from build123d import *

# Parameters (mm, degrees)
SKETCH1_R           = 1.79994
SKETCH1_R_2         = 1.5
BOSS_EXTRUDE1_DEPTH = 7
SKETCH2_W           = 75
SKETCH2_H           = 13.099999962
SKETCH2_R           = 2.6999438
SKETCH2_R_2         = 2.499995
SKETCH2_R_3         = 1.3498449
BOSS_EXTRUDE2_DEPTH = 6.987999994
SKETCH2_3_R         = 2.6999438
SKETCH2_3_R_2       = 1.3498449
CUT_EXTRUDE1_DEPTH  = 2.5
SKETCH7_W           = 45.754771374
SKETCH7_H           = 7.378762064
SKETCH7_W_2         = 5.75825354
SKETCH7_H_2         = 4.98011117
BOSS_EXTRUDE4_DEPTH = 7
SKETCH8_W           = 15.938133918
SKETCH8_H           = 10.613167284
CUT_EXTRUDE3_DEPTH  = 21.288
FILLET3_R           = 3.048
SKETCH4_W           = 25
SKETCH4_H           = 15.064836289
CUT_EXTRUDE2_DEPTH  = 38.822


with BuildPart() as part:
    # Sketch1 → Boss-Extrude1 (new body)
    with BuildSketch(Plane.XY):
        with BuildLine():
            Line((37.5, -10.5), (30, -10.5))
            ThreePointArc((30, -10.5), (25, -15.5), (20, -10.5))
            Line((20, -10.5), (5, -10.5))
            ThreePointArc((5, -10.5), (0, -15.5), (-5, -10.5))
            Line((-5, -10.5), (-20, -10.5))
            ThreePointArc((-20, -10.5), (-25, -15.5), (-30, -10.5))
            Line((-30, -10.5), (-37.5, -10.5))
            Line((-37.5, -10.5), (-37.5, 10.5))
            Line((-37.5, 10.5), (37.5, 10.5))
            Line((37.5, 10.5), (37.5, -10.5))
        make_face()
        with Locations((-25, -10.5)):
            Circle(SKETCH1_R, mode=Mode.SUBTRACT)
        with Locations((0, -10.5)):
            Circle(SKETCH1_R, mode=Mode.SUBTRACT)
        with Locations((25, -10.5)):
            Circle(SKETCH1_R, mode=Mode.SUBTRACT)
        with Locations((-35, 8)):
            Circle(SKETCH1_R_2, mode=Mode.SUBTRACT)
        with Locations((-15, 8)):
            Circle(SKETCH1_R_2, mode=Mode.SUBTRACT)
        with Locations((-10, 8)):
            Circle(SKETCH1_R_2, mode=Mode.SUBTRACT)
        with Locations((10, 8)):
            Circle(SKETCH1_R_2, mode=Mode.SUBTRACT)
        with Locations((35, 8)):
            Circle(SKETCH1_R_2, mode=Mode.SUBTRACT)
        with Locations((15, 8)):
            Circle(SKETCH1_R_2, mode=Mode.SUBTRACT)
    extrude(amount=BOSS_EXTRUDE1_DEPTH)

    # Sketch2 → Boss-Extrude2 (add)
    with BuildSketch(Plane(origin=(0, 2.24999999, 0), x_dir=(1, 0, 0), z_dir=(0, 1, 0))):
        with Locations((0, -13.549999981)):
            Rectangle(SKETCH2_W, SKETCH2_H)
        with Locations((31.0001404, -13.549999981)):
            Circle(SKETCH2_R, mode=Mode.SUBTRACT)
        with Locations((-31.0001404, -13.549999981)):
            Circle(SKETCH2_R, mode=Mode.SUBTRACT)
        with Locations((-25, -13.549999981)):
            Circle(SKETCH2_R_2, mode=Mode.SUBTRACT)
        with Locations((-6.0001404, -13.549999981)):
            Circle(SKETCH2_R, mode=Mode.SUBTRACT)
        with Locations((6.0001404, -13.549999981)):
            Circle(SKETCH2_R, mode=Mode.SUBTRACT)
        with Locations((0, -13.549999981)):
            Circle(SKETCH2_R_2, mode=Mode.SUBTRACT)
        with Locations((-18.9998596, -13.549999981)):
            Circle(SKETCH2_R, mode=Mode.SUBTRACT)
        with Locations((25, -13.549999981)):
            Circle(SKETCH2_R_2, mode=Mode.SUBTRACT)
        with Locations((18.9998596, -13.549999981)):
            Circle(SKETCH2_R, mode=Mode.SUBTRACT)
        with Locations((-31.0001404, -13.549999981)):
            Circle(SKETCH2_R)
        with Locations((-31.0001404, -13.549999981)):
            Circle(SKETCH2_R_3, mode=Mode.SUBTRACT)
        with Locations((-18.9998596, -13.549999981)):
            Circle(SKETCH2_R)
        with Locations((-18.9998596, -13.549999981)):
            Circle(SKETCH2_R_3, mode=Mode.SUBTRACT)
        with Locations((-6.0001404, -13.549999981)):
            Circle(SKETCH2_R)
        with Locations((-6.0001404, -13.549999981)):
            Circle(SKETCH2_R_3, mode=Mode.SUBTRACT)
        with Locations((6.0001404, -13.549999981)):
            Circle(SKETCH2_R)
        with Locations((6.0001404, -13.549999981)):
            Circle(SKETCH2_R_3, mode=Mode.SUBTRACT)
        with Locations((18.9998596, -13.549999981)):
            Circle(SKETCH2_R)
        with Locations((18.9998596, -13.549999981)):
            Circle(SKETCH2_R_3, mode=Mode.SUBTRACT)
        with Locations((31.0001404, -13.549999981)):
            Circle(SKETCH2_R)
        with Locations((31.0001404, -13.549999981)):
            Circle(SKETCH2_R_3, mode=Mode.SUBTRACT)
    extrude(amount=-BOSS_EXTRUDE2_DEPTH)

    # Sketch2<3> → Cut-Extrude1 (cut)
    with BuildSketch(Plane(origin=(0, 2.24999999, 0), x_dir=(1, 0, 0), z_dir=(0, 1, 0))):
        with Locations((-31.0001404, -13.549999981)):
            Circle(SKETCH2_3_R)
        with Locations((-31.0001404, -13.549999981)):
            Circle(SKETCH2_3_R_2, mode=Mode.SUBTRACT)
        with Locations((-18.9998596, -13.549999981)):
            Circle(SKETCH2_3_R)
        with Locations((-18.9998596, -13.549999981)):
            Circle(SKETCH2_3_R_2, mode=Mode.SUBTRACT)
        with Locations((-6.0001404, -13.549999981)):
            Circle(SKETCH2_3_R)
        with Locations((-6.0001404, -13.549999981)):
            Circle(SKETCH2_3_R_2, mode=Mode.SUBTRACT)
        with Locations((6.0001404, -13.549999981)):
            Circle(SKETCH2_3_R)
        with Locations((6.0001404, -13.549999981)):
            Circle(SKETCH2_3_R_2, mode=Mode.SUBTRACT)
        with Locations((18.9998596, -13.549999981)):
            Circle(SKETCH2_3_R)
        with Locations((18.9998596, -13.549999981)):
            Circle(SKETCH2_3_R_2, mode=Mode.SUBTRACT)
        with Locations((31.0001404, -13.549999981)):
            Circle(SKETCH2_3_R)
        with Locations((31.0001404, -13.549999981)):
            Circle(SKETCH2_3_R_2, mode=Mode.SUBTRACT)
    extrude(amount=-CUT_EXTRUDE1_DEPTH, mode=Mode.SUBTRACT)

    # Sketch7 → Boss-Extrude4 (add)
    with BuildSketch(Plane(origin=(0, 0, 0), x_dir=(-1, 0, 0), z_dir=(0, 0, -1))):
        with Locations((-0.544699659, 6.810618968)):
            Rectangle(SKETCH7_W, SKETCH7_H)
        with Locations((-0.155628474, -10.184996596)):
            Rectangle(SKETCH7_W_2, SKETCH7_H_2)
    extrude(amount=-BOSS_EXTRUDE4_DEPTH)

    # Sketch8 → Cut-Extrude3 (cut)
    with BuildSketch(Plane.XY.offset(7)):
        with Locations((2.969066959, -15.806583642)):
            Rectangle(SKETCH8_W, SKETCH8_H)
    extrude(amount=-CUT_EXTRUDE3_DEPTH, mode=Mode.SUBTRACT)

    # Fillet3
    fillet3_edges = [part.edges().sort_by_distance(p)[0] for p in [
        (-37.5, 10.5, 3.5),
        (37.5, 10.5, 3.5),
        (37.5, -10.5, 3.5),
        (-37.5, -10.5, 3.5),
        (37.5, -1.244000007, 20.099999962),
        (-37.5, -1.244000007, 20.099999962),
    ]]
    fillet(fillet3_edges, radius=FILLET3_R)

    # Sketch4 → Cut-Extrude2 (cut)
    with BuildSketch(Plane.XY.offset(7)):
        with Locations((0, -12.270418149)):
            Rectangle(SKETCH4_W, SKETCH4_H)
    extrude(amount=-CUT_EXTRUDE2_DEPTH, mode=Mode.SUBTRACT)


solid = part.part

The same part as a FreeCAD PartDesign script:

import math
import FreeCAD as App
import Part
import Sketcher

V = App.Vector


def edges_at(feature, points):
    """Names of the edges that pass closest to the given points."""
    edges = feature.Shape.Edges
    near = lambda p: min(range(len(edges)), key=lambda i: edges[i].distToShape(Part.Vertex(*p))[0])
    return sorted({f"Edge{near(p) + 1}" for p in points})


def add_polygon(sketch, points):
    """Adds a closed chain of lines whose ends are joined by coincident constraints."""
    first, n = sketch.GeometryCount, len(points)
    for a, b in zip(points, points[1:] + points[:1]):
        sketch.addGeometry(Part.LineSegment(App.Vector(*a, 0), App.Vector(*b, 0)), False)
    for i in range(n):
        sketch.addConstraint(Sketcher.Constraint("Coincident", first + i, 2, first + (i + 1) % n, 1))

doc = App.newDocument("Part")
body = doc.addObject("PartDesign::Body", "Body")

sketch1 = doc.addObject("Sketcher::SketchObject", "Sketch")
body.addObject(sketch1)
sketch1.AttachmentSupport = (doc.XY_Plane, [""])
sketch1.MapMode = "FlatFace"
sketch1.addGeometry(Part.LineSegment(V(30, -10.5, 0), V(37.5, -10.5, 0)), False)
sketch1.addGeometry(Part.LineSegment(V(37.5, -10.5, 0), V(37.5, 10.5, 0)), False)
sketch1.addGeometry(Part.LineSegment(V(37.5, 10.5, 0), V(-37.5, 10.5, 0)), False)
sketch1.addGeometry(Part.LineSegment(V(-37.5, 10.5, 0), V(-37.5, -10.5, 0)), False)
sketch1.addGeometry(Part.LineSegment(V(-37.5, -10.5, 0), V(-30, -10.5, 0)), False)
sketch1.addGeometry(Part.ArcOfCircle(Part.Circle(V(-25, -10.5, 0), V(0, 0, 1), 5), math.radians(180), math.radians(360)), False)
sketch1.addGeometry(Part.LineSegment(V(-20, -10.5, 0), V(-5, -10.5, 0)), False)
sketch1.addGeometry(Part.ArcOfCircle(Part.Circle(V(0, -10.5, 0), V(0, 0, 1), 5), math.radians(180), math.radians(360)), False)
sketch1.addGeometry(Part.LineSegment(V(5, -10.5, 0), V(20, -10.5, 0)), False)
sketch1.addGeometry(Part.ArcOfCircle(Part.Circle(V(25, -10.5, 0), V(0, 0, 1), 5), math.radians(180), math.radians(360)), False)
sketch1.addGeometry(Part.Circle(V(25, -10.5, 0), V(0, 0, 1), 1.8), False)
sketch1.addGeometry(Part.Circle(V(0, -10.5, 0), V(0, 0, 1), 1.8), False)
sketch1.addGeometry(Part.Circle(V(-25, -10.5, 0), V(0, 0, 1), 1.8), False)
sketch1.addGeometry(Part.Circle(V(35, 8, 0), V(0, 0, 1), 1.5), False)
sketch1.addGeometry(Part.Circle(V(15, 8, 0), V(0, 0, 1), 1.5), False)
sketch1.addGeometry(Part.Circle(V(10, 8, 0), V(0, 0, 1), 1.5), False)
sketch1.addGeometry(Part.Circle(V(-10, 8, 0), V(0, 0, 1), 1.5), False)
sketch1.addGeometry(Part.Circle(V(-15, 8, 0), V(0, 0, 1), 1.5), False)
sketch1.addGeometry(Part.Circle(V(-35, 8, 0), V(0, 0, 1), 1.5), False)
sketch1.addConstraint(Sketcher.Constraint("Coincident", 0, 2, 1, 1))
sketch1.addConstraint(Sketcher.Constraint("Coincident", 1, 2, 2, 1))
sketch1.addConstraint(Sketcher.Constraint("Coincident", 2, 2, 3, 1))
sketch1.addConstraint(Sketcher.Constraint("Coincident", 3, 2, 4, 1))
sketch1.addConstraint(Sketcher.Constraint("Coincident", 4, 2, 5, 1))
sketch1.addConstraint(Sketcher.Constraint("Coincident", 5, 2, 6, 1))
sketch1.addConstraint(Sketcher.Constraint("Coincident", 6, 2, 7, 1))
sketch1.addConstraint(Sketcher.Constraint("Coincident", 7, 2, 8, 1))
sketch1.addConstraint(Sketcher.Constraint("Coincident", 8, 2, 9, 1))
sketch1.addConstraint(Sketcher.Constraint("Coincident", 9, 2, 0, 1))
sketch1.addConstraint(Sketcher.Constraint("Horizontal", 0))
sketch1.addConstraint(Sketcher.Constraint("Vertical", 1))
sketch1.addConstraint(Sketcher.Constraint("Horizontal", 2))
sketch1.addConstraint(Sketcher.Constraint("Vertical", 3))
sketch1.addConstraint(Sketcher.Constraint("Horizontal", 4))
sketch1.addConstraint(Sketcher.Constraint("Horizontal", 6))
sketch1.addConstraint(Sketcher.Constraint("Horizontal", 8))
sketch1.addConstraint(Sketcher.Constraint("Coincident", 10, 3, 9, 3))
sketch1.addConstraint(Sketcher.Constraint("Coincident", 11, 3, 7, 3))
sketch1.addConstraint(Sketcher.Constraint("Coincident", 12, 3, 5, 3))
sketch1.addConstraint(Sketcher.Constraint("Equal", 5, 7))
sketch1.addConstraint(Sketcher.Constraint("Equal", 7, 9))
sketch1.addConstraint(Sketcher.Constraint("Equal", 10, 11))
sketch1.addConstraint(Sketcher.Constraint("Equal", 11, 12))
sketch1.addConstraint(Sketcher.Constraint("Equal", 13, 14))
sketch1.addConstraint(Sketcher.Constraint("Equal", 14, 15))
sketch1.addConstraint(Sketcher.Constraint("Equal", 15, 16))
sketch1.addConstraint(Sketcher.Constraint("Equal", 16, 17))
sketch1.addConstraint(Sketcher.Constraint("Equal", 17, 18))
sketch1.addConstraint(Sketcher.Constraint("Symmetric", 0, 2, 2, 2, -1, 1))
sketch1.addConstraint(Sketcher.Constraint("Symmetric", 5, 3, 9, 3, -2))
sketch1.addConstraint(Sketcher.Constraint("Symmetric", 15, 3, 16, 3, -2))
sketch1.addConstraint(Sketcher.Constraint("Symmetric", 14, 3, 17, 3, -2))
sketch1.addConstraint(Sketcher.Constraint("Symmetric", 13, 3, 18, 3, -2))
sketch1.addConstraint(Sketcher.Constraint("Symmetric", 6, 2, 7, 2, -2))
sketch1.addConstraint(Sketcher.Constraint("Horizontal", 5, 3, 7, 3))
sketch1.addConstraint(Sketcher.Constraint("Horizontal", 13, 3, 14, 3))
sketch1.addConstraint(Sketcher.Constraint("Horizontal", 14, 3, 15, 3))
sketch1.addConstraint(Sketcher.Constraint("Horizontal", 12, 3, 0, 2))
sketch1.addConstraint(Sketcher.Constraint("Horizontal", 0, 2, 3, 2))
sketch1.addConstraint(Sketcher.Constraint("Horizontal", 4, 2, 5, 2))
sketch1.addConstraint(Sketcher.Constraint("Diameter", 13, 3.0))
sketch1.addConstraint(Sketcher.Constraint("Radius", 5, 5.0))
sketch1.addConstraint(Sketcher.Constraint("DistanceX", 2, 2, 2, 1, 75.0))
sketch1.addConstraint(Sketcher.Constraint("DistanceX", 6, 1, 6, 2, 15.0))
sketch1.addConstraint(Sketcher.Constraint("DistanceY", 1, 1, 1, 2, 21.0))
sketch1.addConstraint(Sketcher.Constraint("DistanceX", -1, 1, 13, 3, 35.0))
sketch1.addConstraint(Sketcher.Constraint("DistanceY", -1, 1, 13, 3, 8.0))
sketch1.addConstraint(Sketcher.Constraint("DistanceX", -1, 1, 14, 3, 15.0))
sketch1.addConstraint(Sketcher.Constraint("DistanceX", -1, 1, 15, 3, 10.0))
sketch1.addConstraint(Sketcher.Constraint("Diameter", 10, 3.59988))
pad1 = doc.addObject("PartDesign::Pad", "Pad")
body.addObject(pad1)
pad1.Profile = sketch1
pad1.Length = 7

sketch2 = doc.addObject("Sketcher::SketchObject", "Sketch001")
body.addObject(sketch2)
sketch2.AttachmentSupport = (doc.XZ_Plane, [""])
sketch2.MapMode = "FlatFace"
sketch2.AttachmentOffset = App.Placement(V(0, 0, -2.25), App.Rotation())
add_polygon(sketch2, [(-37.5, 7), (-37.5, 20.1), (37.5, 20.1), (37.5, 7)])
sketch2.addGeometry(Part.Circle(V(-31, 13.5, 0), V(0, 0, 1), 1.3), False)
sketch2.addGeometry(Part.Circle(V(-25, 13.5, 0), V(0, 0, 1), 2.5), False)
sketch2.addGeometry(Part.Circle(V(-19, 13.5, 0), V(0, 0, 1), 1.3), False)
sketch2.addGeometry(Part.Circle(V(-6, 13.5, 0), V(0, 0, 1), 1.3), False)
sketch2.addGeometry(Part.Circle(V(0, 13.5, 0), V(0, 0, 1), 2.5), False)
sketch2.addGeometry(Part.Circle(V(6, 13.5, 0), V(0, 0, 1), 1.3), False)
sketch2.addGeometry(Part.Circle(V(19, 13.5, 0), V(0, 0, 1), 1.3), False)
sketch2.addGeometry(Part.Circle(V(25, 13.5, 0), V(0, 0, 1), 2.5), False)
sketch2.addGeometry(Part.Circle(V(31, 13.5, 0), V(0, 0, 1), 1.3), False)
sketch2.addConstraint(Sketcher.Constraint("Vertical", 0))
sketch2.addConstraint(Sketcher.Constraint("Horizontal", 1))
sketch2.addConstraint(Sketcher.Constraint("Vertical", 2))
sketch2.addConstraint(Sketcher.Constraint("Horizontal", 3))
sketch2.addConstraint(Sketcher.Constraint("Equal", 4, 6))
sketch2.addConstraint(Sketcher.Constraint("Equal", 6, 7))
sketch2.addConstraint(Sketcher.Constraint("Equal", 5, 8))
sketch2.addConstraint(Sketcher.Constraint("Equal", 7, 9))
sketch2.addConstraint(Sketcher.Constraint("Equal", 9, 10))
sketch2.addConstraint(Sketcher.Constraint("Equal", 8, 11))
sketch2.addConstraint(Sketcher.Constraint("Equal", 10, 12))
sketch2.addConstraint(Sketcher.Constraint("Symmetric", 7, 3, 9, 3, -2))
sketch2.addConstraint(Sketcher.Constraint("Symmetric", 6, 3, 10, 3, -2))
sketch2.addConstraint(Sketcher.Constraint("Symmetric", 5, 3, 11, 3, -2))
sketch2.addConstraint(Sketcher.Constraint("Symmetric", 4, 3, 12, 3, -2))
sketch2.addConstraint(Sketcher.Constraint("PointOnObject", 8, 3, -2))
sketch2.addConstraint(Sketcher.Constraint("Horizontal", 4, 3, 5, 3))
sketch2.addConstraint(Sketcher.Constraint("Horizontal", 5, 3, 6, 3))
sketch2.addConstraint(Sketcher.Constraint("Horizontal", 6, 3, 7, 3))
sketch2.addConstraint(Sketcher.Constraint("Horizontal", 7, 3, 8, 3))
sketch2.addConstraint(Sketcher.Constraint("DistanceX", 1, 1, 1, 2, 75.0))
sketch2.addConstraint(Sketcher.Constraint("DistanceY", 0, 1, 0, 2, 13.1))
sketch2.addConstraint(Sketcher.Constraint("DistanceX", 5, 3, -1, 1, 25.0))
sketch2.addConstraint(Sketcher.Constraint("DistanceY", -1, 1, 2, 2, 7.0))
sketch2.addConstraint(Sketcher.Constraint("DistanceX", 4, 3, 7, 3, 25.0))
sketch2.addConstraint(Sketcher.Constraint("DistanceX", 6, 3, 9, 3, 25.0))
sketch2.addConstraint(Sketcher.Constraint("DistanceX", 0, 2, -1, 1, 37.5))
sketch2.addConstraint(Sketcher.Constraint("Diameter", 4, 2.69969))
sketch2.addConstraint(Sketcher.Constraint("Diameter", 5, 4.99999))
sketch2.addConstraint(Sketcher.Constraint("DistanceY", -1, 1, 4, 3, 13.55))
sketch2.addConstraint(Sketcher.Constraint("DistanceX", 4, 3, -1, 1, 31.00014))
pad2 = doc.addObject("PartDesign::Pad", "Pad001")
body.addObject(pad2)
pad2.Profile = sketch2
pad2.Length = 6.988

sketch3 = doc.addObject("Sketcher::SketchObject", "Sketch002")
body.addObject(sketch3)
sketch3.AttachmentSupport = (doc.XZ_Plane, [""])
sketch3.MapMode = "FlatFace"
sketch3.AttachmentOffset = App.Placement(V(0, 0, -2.25), App.Rotation())
sketch3.addGeometry(Part.Circle(V(-31, 13.5, 0), V(0, 0, 1), 2.7), False)
sketch3.addGeometry(Part.Circle(V(-31, 13.5, 0), V(0, 0, 1), 1.3), False)
sketch3.addGeometry(Part.Circle(V(-19, 13.5, 0), V(0, 0, 1), 2.7), False)
sketch3.addGeometry(Part.Circle(V(-19, 13.5, 0), V(0, 0, 1), 1.3), False)
sketch3.addGeometry(Part.Circle(V(-6, 13.5, 0), V(0, 0, 1), 2.7), False)
sketch3.addGeometry(Part.Circle(V(-6, 13.5, 0), V(0, 0, 1), 1.3), False)
sketch3.addGeometry(Part.Circle(V(6, 13.5, 0), V(0, 0, 1), 2.7), False)
sketch3.addGeometry(Part.Circle(V(6, 13.5, 0), V(0, 0, 1), 1.3), False)
sketch3.addGeometry(Part.Circle(V(19, 13.5, 0), V(0, 0, 1), 2.7), False)
sketch3.addGeometry(Part.Circle(V(19, 13.5, 0), V(0, 0, 1), 1.3), False)
sketch3.addGeometry(Part.Circle(V(31, 13.5, 0), V(0, 0, 1), 2.7), False)
sketch3.addGeometry(Part.Circle(V(31, 13.5, 0), V(0, 0, 1), 1.3), False)
sketch3.addConstraint(Sketcher.Constraint("Coincident", 1, 3, 0, 3))
sketch3.addConstraint(Sketcher.Constraint("Coincident", 3, 3, 2, 3))
sketch3.addConstraint(Sketcher.Constraint("Coincident", 5, 3, 4, 3))
sketch3.addConstraint(Sketcher.Constraint("Coincident", 7, 3, 6, 3))
sketch3.addConstraint(Sketcher.Constraint("Coincident", 9, 3, 8, 3))
sketch3.addConstraint(Sketcher.Constraint("Coincident", 11, 3, 10, 3))
sketch3.addConstraint(Sketcher.Constraint("Equal", 0, 2))
sketch3.addConstraint(Sketcher.Constraint("Equal", 1, 3))
sketch3.addConstraint(Sketcher.Constraint("Equal", 2, 4))
sketch3.addConstraint(Sketcher.Constraint("Equal", 3, 5))
sketch3.addConstraint(Sketcher.Constraint("Equal", 4, 6))
sketch3.addConstraint(Sketcher.Constraint("Equal", 5, 7))
sketch3.addConstraint(Sketcher.Constraint("Equal", 6, 8))
sketch3.addConstraint(Sketcher.Constraint("Equal", 7, 9))
sketch3.addConstraint(Sketcher.Constraint("Equal", 8, 10))
sketch3.addConstraint(Sketcher.Constraint("Equal", 9, 11))
sketch3.addConstraint(Sketcher.Constraint("Symmetric", 4, 3, 6, 3, -2))
sketch3.addConstraint(Sketcher.Constraint("Symmetric", 2, 3, 8, 3, -2))
sketch3.addConstraint(Sketcher.Constraint("Symmetric", 0, 3, 10, 3, -2))
sketch3.addConstraint(Sketcher.Constraint("Horizontal", 1, 3, 2, 3))
sketch3.addConstraint(Sketcher.Constraint("Horizontal", 3, 3, 4, 3))
sketch3.addConstraint(Sketcher.Constraint("DistanceX", 0, 3, 4, 3, 25.0))
sketch3.addConstraint(Sketcher.Constraint("DistanceX", 2, 3, 6, 3, 25.0))
sketch3.addConstraint(Sketcher.Constraint("Diameter", 1, 2.69969))
sketch3.addConstraint(Sketcher.Constraint("DistanceY", -1, 1, 0, 3, 13.55))
sketch3.addConstraint(Sketcher.Constraint("Diameter", 0, 5.399888))
sketch3.addConstraint(Sketcher.Constraint("DistanceX", 0, 3, -1, 1, 31.00014))
pocket1 = doc.addObject("PartDesign::Pocket", "Pocket")
body.addObject(pocket1)
pocket1.Profile = sketch3
pocket1.Length = 2.5
pocket1.Reversed = True

sketch4 = doc.addObject("Sketcher::SketchObject", "Sketch003")
body.addObject(sketch4)
sketch4.AttachmentSupport = (doc.XY_Plane, [""])
sketch4.MapMode = "FlatFace"
add_polygon(sketch4, [(23.4, 10.5), (23.4, 3.1), (-22.3, 3.1), (-22.3, 10.5)])
add_polygon(sketch4, [(3, -7.7), (3, -12.7), (-2.7, -12.7), (-2.7, -7.7)])
sketch4.addConstraint(Sketcher.Constraint("Vertical", 0))
sketch4.addConstraint(Sketcher.Constraint("Horizontal", 1))
sketch4.addConstraint(Sketcher.Constraint("Vertical", 2))
sketch4.addConstraint(Sketcher.Constraint("Horizontal", 3))
sketch4.addConstraint(Sketcher.Constraint("Vertical", 4))
sketch4.addConstraint(Sketcher.Constraint("Horizontal", 5))
sketch4.addConstraint(Sketcher.Constraint("Vertical", 6))
sketch4.addConstraint(Sketcher.Constraint("Horizontal", 7))
sketch4.addConstraint(Sketcher.Constraint("DistanceY", -1, 1, 2, 2, 10.5))
sketch4.addConstraint(Sketcher.Constraint("DistanceX", 1, 2, 1, 1, 45.754771))
sketch4.addConstraint(Sketcher.Constraint("DistanceY", 4, 2, 4, 1, 4.980111))
sketch4.addConstraint(Sketcher.Constraint("DistanceX", 5, 2, -1, 1, 2.723498))
sketch4.addConstraint(Sketcher.Constraint("DistanceX", 5, 2, 5, 1, 5.758254))
sketch4.addConstraint(Sketcher.Constraint("DistanceY", 0, 2, 0, 1, 7.378762))
sketch4.addConstraint(Sketcher.Constraint("DistanceY", 6, 2, -1, 1, 7.694941))
sketch4.addConstraint(Sketcher.Constraint("DistanceX", 4, 2, 0, 2, 20.38733))
pad3 = doc.addObject("PartDesign::Pad", "Pad002")
body.addObject(pad3)
pad3.Profile = sketch4
pad3.Length = 7

sketch5 = doc.addObject("Sketcher::SketchObject", "Sketch004")
body.addObject(sketch5)
sketch5.AttachmentSupport = (doc.XY_Plane, [""])
sketch5.MapMode = "FlatFace"
sketch5.AttachmentOffset = App.Placement(V(0, 0, 7), App.Rotation())
add_polygon(sketch5, [(-5, -10), (-5, -21), (11, -21), (11, -10)])
sketch5.addConstraint(Sketcher.Constraint("Vertical", 0))
sketch5.addConstraint(Sketcher.Constraint("Horizontal", 1))
sketch5.addConstraint(Sketcher.Constraint("Vertical", 2))
sketch5.addConstraint(Sketcher.Constraint("Horizontal", 3))
sketch5.addConstraint(Sketcher.Constraint("DistanceX", 0, 2, -1, 1, 5.0))
sketch5.addConstraint(Sketcher.Constraint("DistanceY", 2, 2, -1, 1, 10.5))
sketch5.addConstraint(Sketcher.Constraint("DistanceX", 1, 1, 1, 2, 15.938134))
sketch5.addConstraint(Sketcher.Constraint("DistanceY", 0, 2, 0, 1, 10.613167))
pocket2 = doc.addObject("PartDesign::Pocket", "Pocket001")
body.addObject(pocket2)
pocket2.Profile = sketch5
pocket2.Length = 21.288
doc.recompute()

fillet = doc.addObject("PartDesign::Fillet", "Fillet")
body.addObject(fillet)
fillet.Base = (pocket2, edges_at(pocket2, [
    (-37.5, 10.5, 3.5),
    (37.5, 10.5, 3.5),
    (37.5, -10.5, 3.5),
    (-37.5, -10.5, 3.5),
    (37.5, -1.244, 20.1),
    (-37.5, -1.244, 20.1),
]))
fillet.Radius = 3.048

sketch6 = doc.addObject("Sketcher::SketchObject", "Sketch005")
body.addObject(sketch6)
sketch6.AttachmentSupport = (doc.XY_Plane, [""])
sketch6.MapMode = "FlatFace"
sketch6.AttachmentOffset = App.Placement(V(0, 0, 7), App.Rotation())
add_polygon(sketch6, [(-12, -5), (-12, -20), (12, -20), (12, -5)])
sketch6.addConstraint(Sketcher.Constraint("Vertical", 0))
sketch6.addConstraint(Sketcher.Constraint("Horizontal", 1))
sketch6.addConstraint(Sketcher.Constraint("Vertical", 2))
sketch6.addConstraint(Sketcher.Constraint("Horizontal", 3))
sketch6.addConstraint(Sketcher.Constraint("DistanceX", 1, 1, 1, 2, 25.0))
sketch6.addConstraint(Sketcher.Constraint("DistanceX", 0, 2, -1, 1, 12.5))
sketch6.addConstraint(Sketcher.Constraint("DistanceY", 2, 2, -1, 1, 4.738))
sketch6.addConstraint(Sketcher.Constraint("DistanceY", 0, 2, 0, 1, 15.064836))
pocket3 = doc.addObject("PartDesign::Pocket", "Pocket002")
body.addObject(pocket3)
pocket3.Profile = sketch6
pocket3.Length = 38.822

doc.recompute()
